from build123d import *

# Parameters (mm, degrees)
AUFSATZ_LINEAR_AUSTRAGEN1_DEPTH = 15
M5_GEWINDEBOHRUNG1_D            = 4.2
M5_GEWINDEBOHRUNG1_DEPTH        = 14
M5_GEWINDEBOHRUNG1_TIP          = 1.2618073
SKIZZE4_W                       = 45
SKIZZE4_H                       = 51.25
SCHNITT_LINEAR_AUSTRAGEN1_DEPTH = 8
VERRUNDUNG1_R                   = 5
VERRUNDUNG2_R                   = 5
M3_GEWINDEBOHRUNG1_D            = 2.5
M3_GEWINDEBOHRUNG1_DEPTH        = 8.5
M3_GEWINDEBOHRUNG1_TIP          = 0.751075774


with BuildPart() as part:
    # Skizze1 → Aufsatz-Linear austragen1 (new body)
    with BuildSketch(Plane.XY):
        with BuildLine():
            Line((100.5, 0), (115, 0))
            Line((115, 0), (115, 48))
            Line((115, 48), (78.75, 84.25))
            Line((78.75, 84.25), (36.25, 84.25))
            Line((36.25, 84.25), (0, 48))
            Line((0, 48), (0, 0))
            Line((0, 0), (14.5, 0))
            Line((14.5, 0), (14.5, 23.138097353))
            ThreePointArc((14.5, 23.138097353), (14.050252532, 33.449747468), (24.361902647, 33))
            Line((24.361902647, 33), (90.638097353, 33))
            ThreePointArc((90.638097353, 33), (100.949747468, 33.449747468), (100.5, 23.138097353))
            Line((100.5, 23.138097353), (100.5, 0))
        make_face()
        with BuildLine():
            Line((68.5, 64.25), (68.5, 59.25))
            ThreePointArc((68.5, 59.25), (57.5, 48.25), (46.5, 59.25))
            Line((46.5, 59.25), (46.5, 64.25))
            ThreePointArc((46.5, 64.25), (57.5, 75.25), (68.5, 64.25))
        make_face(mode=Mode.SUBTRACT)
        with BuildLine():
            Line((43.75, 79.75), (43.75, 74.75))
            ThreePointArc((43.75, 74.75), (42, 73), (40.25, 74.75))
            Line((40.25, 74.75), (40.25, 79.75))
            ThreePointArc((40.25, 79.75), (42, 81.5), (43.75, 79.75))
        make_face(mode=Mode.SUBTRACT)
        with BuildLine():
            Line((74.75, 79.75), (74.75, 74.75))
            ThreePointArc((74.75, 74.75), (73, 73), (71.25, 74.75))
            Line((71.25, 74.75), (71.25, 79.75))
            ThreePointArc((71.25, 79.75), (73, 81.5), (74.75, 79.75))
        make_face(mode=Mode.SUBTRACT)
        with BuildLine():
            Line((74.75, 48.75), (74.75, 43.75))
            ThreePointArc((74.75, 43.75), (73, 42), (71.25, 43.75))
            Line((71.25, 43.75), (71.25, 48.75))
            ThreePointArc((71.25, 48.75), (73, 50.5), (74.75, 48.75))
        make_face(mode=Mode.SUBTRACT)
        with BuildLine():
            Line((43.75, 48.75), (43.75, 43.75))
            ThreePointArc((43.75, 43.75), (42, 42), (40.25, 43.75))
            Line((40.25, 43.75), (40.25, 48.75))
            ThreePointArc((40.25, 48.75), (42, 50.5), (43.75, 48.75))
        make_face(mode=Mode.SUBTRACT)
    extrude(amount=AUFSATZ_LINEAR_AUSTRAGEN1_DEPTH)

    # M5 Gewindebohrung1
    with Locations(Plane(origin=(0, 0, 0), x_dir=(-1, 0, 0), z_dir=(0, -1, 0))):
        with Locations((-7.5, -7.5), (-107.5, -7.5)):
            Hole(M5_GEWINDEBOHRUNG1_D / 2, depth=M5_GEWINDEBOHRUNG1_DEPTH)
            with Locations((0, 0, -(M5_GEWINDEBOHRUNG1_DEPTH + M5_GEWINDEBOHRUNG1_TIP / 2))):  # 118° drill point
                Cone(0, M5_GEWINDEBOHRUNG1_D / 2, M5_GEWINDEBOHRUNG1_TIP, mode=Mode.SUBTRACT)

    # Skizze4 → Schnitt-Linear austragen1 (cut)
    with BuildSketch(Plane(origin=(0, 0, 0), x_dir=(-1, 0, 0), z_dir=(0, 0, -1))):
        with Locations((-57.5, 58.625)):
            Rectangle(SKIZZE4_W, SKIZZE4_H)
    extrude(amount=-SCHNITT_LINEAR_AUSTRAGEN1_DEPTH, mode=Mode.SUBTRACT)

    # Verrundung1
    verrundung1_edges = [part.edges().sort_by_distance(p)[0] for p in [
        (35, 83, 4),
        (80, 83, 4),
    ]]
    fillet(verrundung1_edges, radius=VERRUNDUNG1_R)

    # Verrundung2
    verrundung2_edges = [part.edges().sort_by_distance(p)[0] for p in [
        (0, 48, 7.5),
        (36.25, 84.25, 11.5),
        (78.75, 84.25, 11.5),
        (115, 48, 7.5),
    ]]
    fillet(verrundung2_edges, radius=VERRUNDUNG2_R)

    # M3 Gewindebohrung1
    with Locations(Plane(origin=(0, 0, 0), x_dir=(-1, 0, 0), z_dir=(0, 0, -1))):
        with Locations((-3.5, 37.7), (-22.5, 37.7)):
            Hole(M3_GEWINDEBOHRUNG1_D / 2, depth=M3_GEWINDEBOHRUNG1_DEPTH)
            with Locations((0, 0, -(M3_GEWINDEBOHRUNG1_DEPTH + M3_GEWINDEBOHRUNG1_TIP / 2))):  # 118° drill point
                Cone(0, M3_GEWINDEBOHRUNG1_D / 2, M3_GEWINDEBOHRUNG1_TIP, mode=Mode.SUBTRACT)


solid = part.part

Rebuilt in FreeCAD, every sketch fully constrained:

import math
import FreeCAD as App
import Part
import Sketcher

V = App.Vector
Q = App.Units.Quantity


def edges_at(feature, points):
    """Names of the edges that pass closest to the given points."""
    edges = feature.Shape.Edges
    near = lambda p: min(range(len(edges)), key=lambda i: edges[i].distToShape(Part.Vertex(*p))[0])
    return sorted({f"Edge{near(p) + 1}" for p in points})

doc = App.newDocument("Part")
params = doc.addObject("Spreadsheet::Sheet", "Params")
for row, (alias, value) in enumerate([
    ("sketch1_radius", "7 mm"),
    ("sketch1_radius2", "11 mm"),
    ("sketch1_height", "48 mm"),
    ("sketch1_height2", "5 mm"),
    ("sketch1_radius3", "1.75 mm"),
    ("pad1_length", "15 mm"),
    ("sketch2_diameter", "4.2 mm"),
    ("hole_diameter", "4.2 mm"),
    ("hole_depth", "14 mm"),
    ("sketch3_width", "45 mm"),
    ("sketch3_height", "51.25 mm"),
    ("pocket1_length", "8 mm"),
    ("fillet_radius", "5 mm"),
    ("fillet2_radius", "5 mm"),
    ("sketch4_diameter", "2.5 mm"),
    ("hole2_diameter", "2.5 mm"),
    ("hole2_depth", "8.5 mm"),
], start=1):
    params.set(f"A{row}", alias)
    params.set(f"B{row}", "=" + value)
    params.setAlias(f"B{row}", alias)

body = doc.addObject("PartDesign::Body", "Body")

# Sketch on XY plane
sketch1 = body.newObject("Sketcher::SketchObject", "Sketch")
sketch1.AttachmentSupport = (doc.getObject("XY_Plane"), [""])
sketch1.MapMode = "FlatFace"
sketch1.addGeometry(Part.LineSegment(V(100.5, 0, 0), V(115, 0, 0)), False)
sketch1.addGeometry(Part.LineSegment(V(115, 0, 0), V(115, 48, 0)), False)
sketch1.addGeometry(Part.LineSegment(V(115, 48, 0), V(78.8, 84.2, 0)), False)
sketch1.addGeometry(Part.LineSegment(V(78.8, 84.2, 0), V(36.2, 84.2, 0)), False)
sketch1.addGeometry(Part.LineSegment(V(36.2, 84.2, 0), V(0, 48, 0)), False)
sketch1.addGeometry(Part.LineSegment(V(0, 48, 0), V(0, 0, 0)), False)
sketch1.addGeometry(Part.LineSegment(V(0, 0, 0), V(14.5, 0, 0)), False)
sketch1.addGeometry(Part.LineSegment(V(14.5, 0, 0), V(14.5, 23.1, 0)), False)
sketch1.addGeometry(Part.ArcOfCircle(Part.Circle(V(19, 28.5, 0), V(0, 0, 1), 7), math.radians(40), math.radians(230)), False)
sketch1.addGeometry(Part.LineSegment(V(24.4, 33, 0), V(90.6, 33, 0)), False)
sketch1.addGeometry(Part.ArcOfCircle(Part.Circle(V(96, 28.5, 0), V(0, 0, 1), 7), math.radians(-50), math.radians(140)), False)
sketch1.addGeometry(Part.LineSegment(V(100.5, 23.1, 0), V(100.5, 0, 0)), False)
sketch1.addGeometry(Part.ArcOfCircle(Part.Circle(V(42, 48.8, 0), V(0, 0, 1), 1.8), math.radians(0), math.radians(180)), False)
sketch1.addGeometry(Part.LineSegment(V(43.8, 48.8, 0), V(43.8, 43.8, 0)), False)
sketch1.addGeometry(Part.ArcOfCircle(Part.Circle(V(42, 43.8, 0), V(0, 0, 1), 1.8), math.radians(180), math.radians(360)), False)
sketch1.addGeometry(Part.LineSegment(V(40.2, 43.8, 0), V(40.2, 48.8, 0)), False)
sketch1.addGeometry(Part.ArcOfCircle(Part.Circle(V(73, 48.8, 0), V(0, 0, 1), 1.8), math.radians(0), math.radians(180)), False)
sketch1.addGeometry(Part.LineSegment(V(74.8, 48.8, 0), V(74.8, 43.8, 0)), False)
sketch1.addGeometry(Part.ArcOfCircle(Part.Circle(V(73, 43.8, 0), V(0, 0, 1), 1.8), math.radians(180), math.radians(360)), False)
sketch1.addGeometry(Part.LineSegment(V(71.2, 43.8, 0), V(71.2, 48.8, 0)), False)
sketch1.addGeometry(Part.ArcOfCircle(Part.Circle(V(42, 79.8, 0), V(0, 0, 1), 1.8), math.radians(0), math.radians(180)), False)
sketch1.addGeometry(Part.LineSegment(V(43.8, 79.8, 0), V(43.8, 74.8, 0)), False)
sketch1.addGeometry(Part.ArcOfCircle(Part.Circle(V(42, 74.8, 0), V(0, 0, 1), 1.8), math.radians(180), math.radians(360)), False)
sketch1.addGeometry(Part.LineSegment(V(40.2, 74.8, 0), V(40.2, 79.8, 0)), False)
sketch1.addGeometry(Part.ArcOfCircle(Part.Circle(V(57.5, 64.2, 0), V(0, 0, 1), 11), math.radians(0), math.radians(180)), False)
sketch1.addGeometry(Part.LineSegment(V(68.5, 64.2, 0), V(68.5, 59.2, 0)), False)
sketch1.addGeometry(Part.ArcOfCircle(Part.Circle(V(57.5, 59.2, 0), V(0, 0, 1), 11), math.radians(180), math.radians(360)), False)
sketch1.addGeometry(Part.LineSegment(V(46.5, 59.2, 0), V(46.5, 64.2, 0)), False)
sketch1.addGeometry(Part.ArcOfCircle(Part.Circle(V(73, 79.8, 0), V(0, 0, 1), 1.8), math.radians(0), math.radians(180)), False)
sketch1.addGeometry(Part.LineSegment(V(74.8, 79.8, 0), V(74.8, 74.8, 0)), False)
sketch1.addGeometry(Part.ArcOfCircle(Part.Circle(V(73, 74.8, 0), V(0, 0, 1), 1.8), math.radians(180), math.radians(360)), False)
sketch1.addGeometry(Part.LineSegment(V(71.2, 74.8, 0), V(71.2, 79.8, 0)), False)
sketch1.addConstraint(Sketcher.Constraint("Coincident", 0, 2, 1, 1))
sketch1.addConstraint(Sketcher.Constraint("Coincident", 1, 2, 2, 1))
sketch1.addConstraint(Sketcher.Constraint("Coincident", 2, 2, 3, 1))
sketch1.addConstraint(Sketcher.Constraint("Coincident", 3, 2, 4, 1))
sketch1.addConstraint(Sketcher.Constraint("Coincident", 4, 2, 5, 1))
sketch1.addConstraint(Sketcher.Constraint("Coincident", 5, 2, 6, 1))
sketch1.addConstraint(Sketcher.Constraint("Coincident", 6, 2, 7, 1))
sketch1.addConstraint(Sketcher.Constraint("Coincident", 7, 2, 8, 2))
sketch1.addConstraint(Sketcher.Constraint("Coincident", 8, 1, 9, 1))
sketch1.addConstraint(Sketcher.Constraint("Coincident", 9, 2, 10, 2))
sketch1.addConstraint(Sketcher.Constraint("Coincident", 10, 1, 11, 1))
sketch1.addConstraint(Sketcher.Constraint("Coincident", 11, 2, 0, 1))
sketch1.addConstraint(Sketcher.Constraint("Tangent", 12, 1, 13, 1))
sketch1.addConstraint(Sketcher.Constraint("Tangent", 13, 2, 14, 2))
sketch1.addConstraint(Sketcher.Constraint("Tangent", 14, 1, 15, 1))
sketch1.addConstraint(Sketcher.Constraint("Tangent", 15, 2, 12, 2))
sketch1.addConstraint(Sketcher.Constraint("Tangent", 16, 1, 17, 1))
sketch1.addConstraint(Sketcher.Constraint("Tangent", 17, 2, 18, 2))
sketch1.addConstraint(Sketcher.Constraint("Tangent", 18, 1, 19, 1))
sketch1.addConstraint(Sketcher.Constraint("Tangent", 19, 2, 16, 2))
sketch1.addConstraint(Sketcher.Constraint("Tangent", 20, 1, 21, 1))
sketch1.addConstraint(Sketcher.Constraint("Tangent", 21, 2, 22, 2))
sketch1.addConstraint(Sketcher.Constraint("Tangent", 22, 1, 23, 1))
sketch1.addConstraint(Sketcher.Constraint("Tangent", 23, 2, 20, 2))
sketch1.addConstraint(Sketcher.Constraint("Tangent", 24, 1, 25, 1))
sketch1.addConstraint(Sketcher.Constraint("Tangent", 25, 2, 26, 2))
sketch1.addConstraint(Sketcher.Constraint("Tangent", 26, 1, 27, 1))
sketch1.addConstraint(Sketcher.Constraint("Tangent", 27, 2, 24, 2))
sketch1.addConstraint(Sketcher.Constraint("Tangent", 28, 1, 29, 1))
sketch1.addConstraint(Sketcher.Constraint("Tangent", 29, 2, 30, 2))
sketch1.addConstraint(Sketcher.Constraint("Tangent", 30, 1, 31, 1))
sketch1.addConstraint(Sketcher.Constraint("Tangent", 31, 2, 28, 2))
sketch1.addConstraint(Sketcher.Constraint("Horizontal", 0))
sketch1.addConstraint(Sketcher.Constraint("Vertical", 1))
sketch1.addConstraint(Sketcher.Constraint("Horizontal", 3))
sketch1.addConstraint(Sketcher.Constraint("Vertical", 5))
sketch1.addConstraint(Sketcher.Constraint("Horizontal", 6))
sketch1.addConstraint(Sketcher.Constraint("Vertical", 7))
sketch1.addConstraint(Sketcher.Constraint("Horizontal", 9))
sketch1.addConstraint(Sketcher.Constraint("Vertical", 11))
sketch1.addConstraint(Sketcher.Constraint("Vertical", 13))
sketch1.addConstraint(Sketcher.Constraint("Vertical", 15))
sketch1.addConstraint(Sketcher.Constraint("Vertical", 17))
sketch1.addConstraint(Sketcher.Constraint("Vertical", 19))
sketch1.addConstraint(Sketcher.Constraint("Vertical", 21))
sketch1.addConstraint(Sketcher.Constraint("Vertical", 23))
sketch1.addConstraint(Sketcher.Constraint("Vertical", 25))
sketch1.addConstraint(Sketcher.Constraint("Vertical", 27))
sketch1.addConstraint(Sketcher.Constraint("Vertical", 29))
sketch1.addConstraint(Sketcher.Constraint("Vertical", 31))
sketch1.addConstraint(Sketcher.Constraint("Coincident", 5, 2, -1, 1))
sketch1.addConstraint(Sketcher.Constraint("Equal", 8, 10))
sketch1.addConstraint(Sketcher.Constraint("Equal", 14, 16))
sketch1.addConstraint(Sketcher.Constraint("Equal", 18, 20))
sketch1.addConstraint(Sketcher.Constraint("Equal", 22, 28))
sketch1.addConstraint(Sketcher.Constraint("PointOnObject", 0, 2, -1))
sketch1.addConstraint(Sketcher.Constraint("Perpendicular", 2, 4))
sketch1.addConstraint(Sketcher.Constraint("Horizontal", 8, 3, 10, 3))
sketch1.addConstraint(Sketcher.Constraint("Horizontal", 12, 3, 16, 3))
sketch1.addConstraint(Sketcher.Constraint("Horizontal", 14, 3, 18, 3))
sketch1.addConstraint(Sketcher.Constraint("Horizontal", 20, 3, 28, 3))
sketch1.addConstraint(Sketcher.Constraint("Horizontal", 22, 3, 30, 3))
sketch1.addConstraint(Sketcher.Constraint("Horizontal", 1, 2, 4, 2))
sketch1.addConstraint(Sketcher.Constraint("Horizontal", 7, 2, 10, 1))
sketch1.addConstraint(Sketcher.Constraint("Vertical", 14, 3, 20, 3))
sketch1.addConstraint(Sketcher.Constraint("Vertical", 18, 3, 28, 3))
sketch1.addConstraint(Sketcher.Constraint("Equal", 0, 6))
sketch1.addConstraint(Sketcher.Constraint("Equal", 19, 21))
sketch1.addConstraint(Sketcher.Constraint("Equal", 23, 25))
sketch1.addConstraint(Sketcher.Constraint("Equal", 2, 4))
sketch1.addConstraint(Sketcher.Constraint("Radius", 8, Q("7 mm")))
sketch1.addConstraint(Sketcher.Constraint("Radius", 24, Q("11 mm")))
sketch1.addConstraint(Sketcher.Constraint("DistanceY", 1, 1, 1, 2, Q("48 mm")))
sketch1.addConstraint(Sketcher.Constraint("DistanceY", 13, 2, 13, 1, Q("5 mm")))
sketch1.addConstraint(Sketcher.Constraint("Radius", 12, Q("1.75 mm")))
sketch1.addConstraint(Sketcher.Constraint("DistanceX", 0, 1, 0, 2, Q("14.5 mm")))
sketch1.addConstraint(Sketcher.Constraint("DistanceX", 3, 2, 3, 1, Q("42.5 mm")))
sketch1.addConstraint(Sketcher.Constraint("DistanceX", -1, 1, 8, 3, Q("19 mm")))
sketch1.addConstraint(Sketcher.Constraint("DistanceX", -1, 1, 10, 3, Q("96 mm")))
sketch1.addConstraint(Sketcher.Constraint("DistanceX", -1, 1, 12, 3, Q("42 mm")))
sketch1.addConstraint(Sketcher.Constraint("DistanceX", -1, 1, 16, 3, Q("73 mm")))
sketch1.addConstraint(Sketcher.Constraint("DistanceY", -1, 1, 8, 1, Q("33 mm")))
sketch1.addConstraint(Sketcher.Constraint("DistanceY", 12, 3, 20, 3, Q("31 mm")))
sketch1.addConstraint(Sketcher.Constraint("DistanceY", 24, 3, 2, 2, Q("20 mm")))
sketch1.addConstraint(Sketcher.Constraint("DistanceY", -1, 1, 8, 3, Q("28.5 mm")))
sketch1.addConstraint(Sketcher.Constraint("DistanceX", -1, 1, 24, 3, Q("57.5 mm")))
sketch1.addConstraint(Sketcher.Constraint("DistanceY", 24, 3, 22, 3, Q("10.5 mm")))
sketch1.setExpression("Constraints[70]", "Params.sketch1_radius")
sketch1.setExpression("Constraints[71]", "Params.sketch1_radius2")
sketch1.setExpression("Constraints[72]", "Params.sketch1_height")
sketch1.setExpression("Constraints[73]", "Params.sketch1_height2")
sketch1.setExpression("Constraints[74]", "Params.sketch1_radius3")
pad1 = body.newObject("PartDesign::Pad", "Pad")
pad1.Profile = sketch1
pad1.setExpression("Length", "Params.pad1_length")

# Sketch on XZ plane
sketch2 = body.newObject("Sketcher::SketchObject", "Sketch001")
sketch2.AttachmentSupport = (doc.getObject("XZ_Plane"), [""])
sketch2.MapMode = "FlatFace"
sketch2.addGeometry(Part.Circle(V(7.5, 7.5, 0), V(0, 0, 1), 2.1), False)
sketch2.addGeometry(Part.Circle(V(107.5, 7.5, 0), V(0, 0, 1), 2.1), False)
sketch2.addConstraint(Sketcher.Constraint("Equal", 0, 1))
sketch2.addConstraint(Sketcher.Constraint("Horizontal", 0, 3, 1, 3))
sketch2.addConstraint(Sketcher.Constraint("Diameter", 0, Q("4.2 mm")))
sketch2.addConstraint(Sketcher.Constraint("DistanceX", 0, 3, 1, 3, Q("100 mm")))
sketch2.addConstraint(Sketcher.Constraint("DistanceX", -1, 1, 0, 3, Q("7.5 mm")))
sketch2.addConstraint(Sketcher.Constraint("DistanceY", -1, 1, 0, 3, Q("7.5 mm")))
sketch2.setExpression("Constraints[2]", "Params.sketch2_diameter")
doc.recompute()
hole = body.newObject("PartDesign::Hole", "Hole")
hole.Profile = sketch2
hole.ThreadType = "None"
hole.setExpression("Diameter", "Params.hole_diameter")
hole.DepthType = "Dimension"
hole.setExpression("Depth", "Params.hole_depth")
hole.DrillPoint = "Angled"
hole.DrillPointAngle = 118

# Sketch on XY plane
sketch3 = body.newObject("Sketcher::SketchObject", "Sketch002")
sketch3.AttachmentSupport = (doc.getObject("XY_Plane"), [""])
sketch3.MapMode = "FlatFace"
sketch3.addGeometry(Part.LineSegment(V(80, 84, 0), V(80, 33, 0)), False)
sketch3.addGeometry(Part.LineSegment(V(80, 33, 0), V(35, 33, 0)), False)
sketch3.addGeometry(Part.LineSegment(V(35, 33, 0), V(35, 84, 0)), False)
sketch3.addGeometry(Part.LineSegment(V(35, 84, 0), V(80, 84, 0)), False)
sketch3.addConstraint(Sketcher.Constraint("Coincident", 0, 2, 1, 1))
sketch3.addConstraint(Sketcher.Constraint("Coincident", 1, 2, 2, 1))
sketch3.addConstraint(Sketcher.Constraint("Coincident", 2, 2, 3, 1))
sketch3.addConstraint(Sketcher.Constraint("Coincident", 3, 2, 0, 1))
sketch3.addConstraint(Sketcher.Constraint("Vertical", 0))
sketch3.addConstraint(Sketcher.Constraint("Horizontal", 1))
sketch3.addConstraint(Sketcher.Constraint("Vertical", 2))
sketch3.addConstraint(Sketcher.Constraint("Horizontal", 3))
sketch3.addConstraint(Sketcher.Constraint("DistanceX", 1, 2, 1, 1, Q("45 mm")))
sketch3.addConstraint(Sketcher.Constraint("DistanceX", -1, 1, 0, 2, Q("80 mm")))
sketch3.addConstraint(Sketcher.Constraint("DistanceY", -1, 1, 0, 2, Q("33 mm")))
sketch3.addConstraint(Sketcher.Constraint("DistanceY", 0, 2, 0, 1, Q("51.25 mm")))
sketch3.setExpression("Constraints[8]", "Params.sketch3_width")
sketch3.setExpression("Constraints[11]", "Params.sketch3_height")
pocket1 = body.newObject("PartDesign::Pocket", "Pocket")
pocket1.Profile = sketch3
pocket1.setExpression("Length", "Params.pocket1_length")
pocket1.Reversed = True
doc.recompute()

fillet = body.newObject("PartDesign::Fillet", "Fillet")
fillet.Base = (pocket1, edges_at(pocket1, [(35, 83, 4), (80, 83, 4)]))
fillet.setExpression("Radius", "Params.fillet_radius")
doc.recompute()

fillet2 = body.newObject("PartDesign::Fillet", "Fillet001")
fillet2.Base = (fillet, edges_at(fillet, [
    (0, 48, 7.5),
    (36.25, 84.25, 11.5),
    (78.75, 84.25, 11.5),
    (115, 48, 7.5),
]))
fillet2.setExpression("Radius", "Params.fillet2_radius")

# Sketch on XY plane
sketch4 = body.newObject("Sketcher::SketchObject", "Sketch003")
sketch4.AttachmentSupport = (doc.getObject("XY_Plane"), [""])
sketch4.MapMode = "FlatFace"
sketch4.addGeometry(Part.Circle(V(3.5, 37.7, 0), V(0, 0, 1), 1.2), False)
sketch4.addGeometry(Part.Circle(V(22.5, 37.7, 0), V(0, 0, 1), 1.2), False)
sketch4.addConstraint(Sketcher.Constraint("Equal", 0, 1))
sketch4.addConstraint(Sketcher.Constraint("Horizontal", 0, 3, 1, 3))
sketch4.addConstraint(Sketcher.Constraint("Diameter", 0, Q("2.5 mm")))
sketch4.addConstraint(Sketcher.Constraint("DistanceX", 0, 3, 1, 3, Q("19 mm")))
sketch4.addConstraint(Sketcher.Constraint("DistanceX", -1, 1, 0, 3, Q("3.5 mm")))
sketch4.addConstraint(Sketcher.Constraint("DistanceY", -1, 1, 0, 3, Q("37.7 mm")))
sketch4.setExpression("Constraints[2]", "Params.sketch4_diameter")
doc.recompute()
hole2 = body.newObject("PartDesign::Hole", "Hole001")
hole2.Profile = sketch4
hole2.ThreadType = "None"
hole2.setExpression("Diameter", "Params.hole2_diameter")
hole2.DepthType = "Dimension"
hole2.setExpression("Depth", "Params.hole2_depth")
hole2.DrillPoint = "Angled"
hole2.DrillPointAngle = 118
hole2.Reversed = True

doc.recompute()
